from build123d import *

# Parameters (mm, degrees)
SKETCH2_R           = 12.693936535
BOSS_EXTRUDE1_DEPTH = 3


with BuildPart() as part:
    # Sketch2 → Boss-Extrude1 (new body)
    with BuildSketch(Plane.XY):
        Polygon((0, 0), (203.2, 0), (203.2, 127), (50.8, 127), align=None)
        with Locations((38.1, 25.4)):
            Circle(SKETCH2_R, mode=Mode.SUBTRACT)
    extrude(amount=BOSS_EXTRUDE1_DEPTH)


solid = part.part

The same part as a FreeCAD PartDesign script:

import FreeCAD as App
import Part
import Sketcher
Q = App.Units.Quantity


def add_polygon(sketch, points):
    """Adds a closed chain of lines whose ends are joined by coincident constraints."""
    first, n = sketch.GeometryCount, len(points)
    for a, b in zip(points, points[1:] + points[:1]):
        sketch.addGeometry(Part.LineSegment(App.Vector(*a, 0), App.Vector(*b, 0)), False)
    for i in range(n):
        sketch.addConstraint(Sketcher.Constraint("Coincident", first + i, 2, first + (i + 1) % n, 1))

doc = App.newDocument("Part")
body = doc.addObject("PartDesign::Body", "Body")

sketch1 = body.newObject("Sketcher::SketchObject", "Sketch")
sketch1.AttachmentSupport = (doc.getObject("XY_Plane"), [""])
sketch1.MapMode = "FlatFace"
add_polygon(sketch1, [(0, 0), (203, 0), (203, 127), (51, 127)])
sketch1.addGeometry(Part.Circle(App.Vector(38, 25, 0), App.Vector(0, 0, 1), 13), False)
sketch1.addConstraint(Sketcher.Constraint("Horizontal", 0))
sketch1.addConstraint(Sketcher.Constraint("Vertical", 1))
sketch1.addConstraint(Sketcher.Constraint("Horizontal", 2))
sketch1.addConstraint(Sketcher.Constraint("Coincident", 3, 2, -1, 1))
sketch1.addConstraint(Sketcher.Constraint("DistanceX", 0, 1, 0, 2, Q("8 in")))
sketch1.addConstraint(Sketcher.Constraint("DistanceX", 2, 2, 2, 1, Q("6 in")))
sketch1.addConstraint(Sketcher.Constraint("DistanceY", 1, 1, 1, 2, Q("5 in")))
sketch1.addConstraint(Sketcher.Constraint("DistanceY", -1, 1, 4, 3, Q("1 in")))
sketch1.addConstraint(Sketcher.Constraint("DistanceX", -1, 1, 4, 3, Q("1.5 in")))
sketch1.addConstraint(Sketcher.Constraint("Diameter", 4, 25.387873))
pad1 = body.newObject("PartDesign::Pad", "Pad")
pad1.Profile = sketch1
pad1.Length = 3

doc.recompute()
